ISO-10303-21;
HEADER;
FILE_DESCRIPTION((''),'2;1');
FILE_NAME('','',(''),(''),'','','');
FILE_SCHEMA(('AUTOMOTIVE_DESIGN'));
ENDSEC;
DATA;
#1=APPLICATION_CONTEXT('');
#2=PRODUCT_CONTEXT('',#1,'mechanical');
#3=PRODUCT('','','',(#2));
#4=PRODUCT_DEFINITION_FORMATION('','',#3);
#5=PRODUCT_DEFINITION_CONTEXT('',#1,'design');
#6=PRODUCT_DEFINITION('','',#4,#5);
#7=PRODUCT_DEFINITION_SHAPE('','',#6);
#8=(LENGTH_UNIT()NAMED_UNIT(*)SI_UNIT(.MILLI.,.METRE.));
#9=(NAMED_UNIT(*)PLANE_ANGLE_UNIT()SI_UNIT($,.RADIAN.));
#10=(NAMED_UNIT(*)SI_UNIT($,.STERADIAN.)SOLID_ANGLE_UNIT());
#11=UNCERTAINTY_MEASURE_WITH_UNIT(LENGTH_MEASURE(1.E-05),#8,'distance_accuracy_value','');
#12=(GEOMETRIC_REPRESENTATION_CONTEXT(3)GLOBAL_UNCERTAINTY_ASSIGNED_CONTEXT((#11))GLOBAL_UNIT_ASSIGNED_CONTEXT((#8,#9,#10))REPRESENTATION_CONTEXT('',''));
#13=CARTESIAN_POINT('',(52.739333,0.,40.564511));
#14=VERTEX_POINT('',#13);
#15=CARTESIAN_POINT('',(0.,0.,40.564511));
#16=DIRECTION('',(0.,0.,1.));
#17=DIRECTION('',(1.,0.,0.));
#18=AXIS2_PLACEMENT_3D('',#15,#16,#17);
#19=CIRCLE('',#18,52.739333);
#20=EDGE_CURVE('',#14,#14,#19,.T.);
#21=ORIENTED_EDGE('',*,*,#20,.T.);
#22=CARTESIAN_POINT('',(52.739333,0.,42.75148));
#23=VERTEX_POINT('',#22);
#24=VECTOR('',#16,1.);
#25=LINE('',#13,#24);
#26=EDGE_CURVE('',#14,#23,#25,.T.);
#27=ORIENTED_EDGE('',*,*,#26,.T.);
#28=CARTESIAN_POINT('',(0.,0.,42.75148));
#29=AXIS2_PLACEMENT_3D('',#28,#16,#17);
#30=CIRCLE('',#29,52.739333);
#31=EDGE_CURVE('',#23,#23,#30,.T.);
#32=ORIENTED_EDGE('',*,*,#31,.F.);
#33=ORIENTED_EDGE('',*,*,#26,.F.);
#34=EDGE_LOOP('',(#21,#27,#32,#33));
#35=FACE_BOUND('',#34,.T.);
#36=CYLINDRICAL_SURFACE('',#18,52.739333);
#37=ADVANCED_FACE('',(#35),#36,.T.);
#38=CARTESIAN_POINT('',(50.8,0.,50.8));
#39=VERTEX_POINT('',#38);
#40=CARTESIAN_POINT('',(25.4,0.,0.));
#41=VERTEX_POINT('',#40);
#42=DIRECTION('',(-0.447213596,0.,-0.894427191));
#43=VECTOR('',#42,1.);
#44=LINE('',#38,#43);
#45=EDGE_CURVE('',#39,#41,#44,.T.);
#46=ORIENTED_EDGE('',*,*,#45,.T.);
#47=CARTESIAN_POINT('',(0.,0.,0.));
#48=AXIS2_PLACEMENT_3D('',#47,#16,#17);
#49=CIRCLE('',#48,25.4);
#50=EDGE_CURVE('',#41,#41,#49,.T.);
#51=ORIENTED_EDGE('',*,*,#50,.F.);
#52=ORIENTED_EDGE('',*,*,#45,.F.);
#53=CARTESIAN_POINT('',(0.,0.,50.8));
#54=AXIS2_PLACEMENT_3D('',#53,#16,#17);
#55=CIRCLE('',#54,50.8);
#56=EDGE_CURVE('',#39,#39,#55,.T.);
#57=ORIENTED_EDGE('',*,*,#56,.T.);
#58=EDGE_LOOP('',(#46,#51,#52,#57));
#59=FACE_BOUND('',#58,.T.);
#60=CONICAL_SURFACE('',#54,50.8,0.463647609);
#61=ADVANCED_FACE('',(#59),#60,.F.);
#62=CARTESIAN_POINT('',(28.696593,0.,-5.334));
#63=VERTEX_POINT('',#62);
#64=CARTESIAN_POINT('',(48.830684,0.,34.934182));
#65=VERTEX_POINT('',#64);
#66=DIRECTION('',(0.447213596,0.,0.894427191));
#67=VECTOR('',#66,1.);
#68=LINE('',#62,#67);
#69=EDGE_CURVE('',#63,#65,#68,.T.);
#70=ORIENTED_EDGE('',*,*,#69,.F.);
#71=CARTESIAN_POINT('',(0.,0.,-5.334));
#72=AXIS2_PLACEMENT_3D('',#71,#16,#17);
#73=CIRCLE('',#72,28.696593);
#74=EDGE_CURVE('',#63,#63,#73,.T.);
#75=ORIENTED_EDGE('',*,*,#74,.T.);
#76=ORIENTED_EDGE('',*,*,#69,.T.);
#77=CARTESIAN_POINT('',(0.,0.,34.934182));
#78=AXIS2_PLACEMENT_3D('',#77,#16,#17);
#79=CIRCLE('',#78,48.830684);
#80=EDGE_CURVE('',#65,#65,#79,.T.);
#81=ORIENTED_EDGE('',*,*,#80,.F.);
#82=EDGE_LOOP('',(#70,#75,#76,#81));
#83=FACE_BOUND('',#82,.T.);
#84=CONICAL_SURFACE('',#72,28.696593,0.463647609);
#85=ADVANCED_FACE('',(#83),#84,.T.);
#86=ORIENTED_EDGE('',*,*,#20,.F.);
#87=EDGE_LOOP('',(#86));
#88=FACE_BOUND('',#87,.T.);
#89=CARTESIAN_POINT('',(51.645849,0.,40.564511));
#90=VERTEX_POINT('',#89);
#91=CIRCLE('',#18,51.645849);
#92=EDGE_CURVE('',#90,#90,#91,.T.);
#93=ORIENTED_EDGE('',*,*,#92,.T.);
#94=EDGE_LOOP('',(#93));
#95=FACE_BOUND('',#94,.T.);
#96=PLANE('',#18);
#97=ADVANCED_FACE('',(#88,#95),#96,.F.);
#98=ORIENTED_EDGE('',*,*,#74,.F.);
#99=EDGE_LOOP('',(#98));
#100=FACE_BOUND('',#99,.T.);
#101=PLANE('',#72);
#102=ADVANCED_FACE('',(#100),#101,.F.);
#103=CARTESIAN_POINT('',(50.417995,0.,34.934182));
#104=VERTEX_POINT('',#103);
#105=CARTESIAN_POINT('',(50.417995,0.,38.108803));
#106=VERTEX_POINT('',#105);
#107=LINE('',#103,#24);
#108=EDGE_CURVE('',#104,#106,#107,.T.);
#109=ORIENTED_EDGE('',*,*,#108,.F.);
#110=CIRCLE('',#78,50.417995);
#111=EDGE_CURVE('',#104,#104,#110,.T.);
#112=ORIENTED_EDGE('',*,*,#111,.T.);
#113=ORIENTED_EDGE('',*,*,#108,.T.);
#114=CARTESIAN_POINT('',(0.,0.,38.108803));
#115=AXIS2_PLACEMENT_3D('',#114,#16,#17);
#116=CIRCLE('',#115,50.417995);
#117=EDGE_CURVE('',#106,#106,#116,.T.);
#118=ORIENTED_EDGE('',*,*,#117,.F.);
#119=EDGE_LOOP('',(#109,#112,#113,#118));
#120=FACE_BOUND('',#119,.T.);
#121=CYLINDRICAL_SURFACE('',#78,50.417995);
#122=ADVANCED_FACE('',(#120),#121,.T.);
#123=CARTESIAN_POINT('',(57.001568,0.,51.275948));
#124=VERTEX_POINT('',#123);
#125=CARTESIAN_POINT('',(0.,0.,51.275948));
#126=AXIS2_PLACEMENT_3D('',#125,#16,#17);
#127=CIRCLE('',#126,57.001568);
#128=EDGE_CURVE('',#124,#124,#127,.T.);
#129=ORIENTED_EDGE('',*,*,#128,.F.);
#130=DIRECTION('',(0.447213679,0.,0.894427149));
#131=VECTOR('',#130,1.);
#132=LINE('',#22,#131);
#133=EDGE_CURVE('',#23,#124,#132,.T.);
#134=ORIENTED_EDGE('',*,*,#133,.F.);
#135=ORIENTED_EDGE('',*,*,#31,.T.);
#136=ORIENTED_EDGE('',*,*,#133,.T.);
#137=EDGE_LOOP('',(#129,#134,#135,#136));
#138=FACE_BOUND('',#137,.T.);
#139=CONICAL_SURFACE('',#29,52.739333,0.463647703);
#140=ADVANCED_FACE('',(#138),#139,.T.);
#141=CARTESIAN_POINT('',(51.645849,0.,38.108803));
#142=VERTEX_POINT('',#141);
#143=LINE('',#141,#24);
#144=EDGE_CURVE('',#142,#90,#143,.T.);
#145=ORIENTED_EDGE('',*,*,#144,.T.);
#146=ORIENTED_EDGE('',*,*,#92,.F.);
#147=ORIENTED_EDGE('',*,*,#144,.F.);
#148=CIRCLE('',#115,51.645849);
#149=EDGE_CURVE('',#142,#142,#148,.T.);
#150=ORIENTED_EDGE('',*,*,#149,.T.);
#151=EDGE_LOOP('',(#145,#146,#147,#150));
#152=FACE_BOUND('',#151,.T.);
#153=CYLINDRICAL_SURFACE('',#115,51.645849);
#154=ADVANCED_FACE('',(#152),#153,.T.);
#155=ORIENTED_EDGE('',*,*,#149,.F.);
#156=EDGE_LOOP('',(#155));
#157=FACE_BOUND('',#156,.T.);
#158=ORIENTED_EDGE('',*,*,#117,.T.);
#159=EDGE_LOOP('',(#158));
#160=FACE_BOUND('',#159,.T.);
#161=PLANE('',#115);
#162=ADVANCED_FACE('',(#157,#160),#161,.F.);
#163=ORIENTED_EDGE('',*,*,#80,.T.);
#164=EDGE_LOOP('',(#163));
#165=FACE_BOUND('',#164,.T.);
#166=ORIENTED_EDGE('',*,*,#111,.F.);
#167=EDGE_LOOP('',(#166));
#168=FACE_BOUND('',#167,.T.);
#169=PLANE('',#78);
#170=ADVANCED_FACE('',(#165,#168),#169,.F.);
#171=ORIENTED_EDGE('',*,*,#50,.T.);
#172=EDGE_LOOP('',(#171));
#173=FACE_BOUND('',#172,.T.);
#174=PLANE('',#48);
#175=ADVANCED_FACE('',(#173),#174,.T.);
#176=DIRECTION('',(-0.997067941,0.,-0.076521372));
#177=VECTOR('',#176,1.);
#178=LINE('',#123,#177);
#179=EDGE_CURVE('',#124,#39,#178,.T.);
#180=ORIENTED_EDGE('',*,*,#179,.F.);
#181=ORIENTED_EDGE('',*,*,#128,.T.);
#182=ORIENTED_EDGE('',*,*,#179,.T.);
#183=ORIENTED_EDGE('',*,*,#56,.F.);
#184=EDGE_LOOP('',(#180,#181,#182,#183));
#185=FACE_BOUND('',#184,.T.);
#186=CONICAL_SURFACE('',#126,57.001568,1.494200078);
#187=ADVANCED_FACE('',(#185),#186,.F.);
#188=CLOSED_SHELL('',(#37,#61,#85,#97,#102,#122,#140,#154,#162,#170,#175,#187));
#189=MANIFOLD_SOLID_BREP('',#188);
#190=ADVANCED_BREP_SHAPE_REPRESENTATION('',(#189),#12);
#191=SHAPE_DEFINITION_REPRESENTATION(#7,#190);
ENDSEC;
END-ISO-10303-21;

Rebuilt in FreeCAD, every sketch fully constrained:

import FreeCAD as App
import Part
import Sketcher

V = App.Vector
Q = App.Units.Quantity


def add_polygon(sketch, points):
    """Adds a closed chain of lines whose ends are joined by coincident constraints."""
    first, n = sketch.GeometryCount, len(points)
    for a, b in zip(points, points[1:] + points[:1]):
        sketch.addGeometry(Part.LineSegment(App.Vector(*a, 0), App.Vector(*b, 0)), False)
    for i in range(n):
        sketch.addConstraint(Sketcher.Constraint("Coincident", first + i, 2, first + (i + 1) % n, 1))

doc = App.newDocument("Part")
body = doc.addObject("PartDesign::Body", "Body")

# Sketch on XZ plane
sketch1 = body.newObject("Sketcher::SketchObject", "Sketch")
sketch1.AttachmentSupport = (doc.getObject("XZ_Plane"), [""])
sketch1.MapMode = "FlatFace"
add_polygon(sketch1, [(25.4, 0), (0, 0), (0, -5.3), (28.7, -5.3), (48.8, 34.9), (50.4, 34.9), (50.4, 38.1), (51.6, 38.1), (51.6, 40.6), (52.7, 40.6), (52.7, 42.8), (57, 51.3), (50.8, 50.8)])  # lines 0-12
sketch1.addConstraint([
    Sketcher.Constraint("Horizontal", 0),
    Sketcher.Constraint("Vertical", 1),
    Sketcher.Constraint("Horizontal", 2),
    Sketcher.Constraint("Horizontal", 4),
    Sketcher.Constraint("Vertical", 5),
    Sketcher.Constraint("Horizontal", 6),
    Sketcher.Constraint("Vertical", 7),
    Sketcher.Constraint("Horizontal", 8),
    Sketcher.Constraint("Vertical", 9),
    Sketcher.Constraint("Coincident", 0, 2, -1, 1),
    Sketcher.Constraint("Parallel", 3, 10),
    Sketcher.Constraint("Parallel", 10, 12),
    Sketcher.Constraint("DistanceX", 0, 2, 0, 1, Q("1 in")),
    Sketcher.Constraint("DistanceX", -1, 1, 11, 2, Q("2 in")),
    Sketcher.Constraint("DistanceY", -1, 1, 11, 2, Q("2 in")),
    Sketcher.Constraint("DistanceY", 1, 2, 1, 1, Q("0.21 in")),
    Sketcher.Constraint("DistanceX", 4, 1, 4, 2, Q("1.587311 mm")),
    Sketcher.Constraint("DistanceY", 5, 1, 5, 2, Q("3.174621 mm")),
    Sketcher.Constraint("DistanceY", 7, 1, 7, 2, Q("2.455708 mm")),
    Sketcher.Constraint("DistanceY", 9, 1, 9, 2, Q("2.186969 mm")),
    Sketcher.Constraint("DistanceX", 2, 2, 4, 2, Q("21.721402 mm")),
    Sketcher.Constraint("DistanceX", 2, 1, 2, 2, Q("28.696593 mm")),
    Sketcher.Constraint("DistanceX", 6, 1, 6, 2, Q("1.227854 mm")),
    Sketcher.Constraint("DistanceX", 8, 1, 8, 2, Q("1.093484 mm")),
    Sketcher.Constraint("DistanceX", 7, 2, 10, 2, Q("5.355719 mm")),
])
revolution = body.newObject("PartDesign::Revolution", "Revolution")
revolution.Profile = sketch1
revolution.ReferenceAxis = (sketch1, ["V_Axis"])
revolution.Angle = 360

doc.recompute()
